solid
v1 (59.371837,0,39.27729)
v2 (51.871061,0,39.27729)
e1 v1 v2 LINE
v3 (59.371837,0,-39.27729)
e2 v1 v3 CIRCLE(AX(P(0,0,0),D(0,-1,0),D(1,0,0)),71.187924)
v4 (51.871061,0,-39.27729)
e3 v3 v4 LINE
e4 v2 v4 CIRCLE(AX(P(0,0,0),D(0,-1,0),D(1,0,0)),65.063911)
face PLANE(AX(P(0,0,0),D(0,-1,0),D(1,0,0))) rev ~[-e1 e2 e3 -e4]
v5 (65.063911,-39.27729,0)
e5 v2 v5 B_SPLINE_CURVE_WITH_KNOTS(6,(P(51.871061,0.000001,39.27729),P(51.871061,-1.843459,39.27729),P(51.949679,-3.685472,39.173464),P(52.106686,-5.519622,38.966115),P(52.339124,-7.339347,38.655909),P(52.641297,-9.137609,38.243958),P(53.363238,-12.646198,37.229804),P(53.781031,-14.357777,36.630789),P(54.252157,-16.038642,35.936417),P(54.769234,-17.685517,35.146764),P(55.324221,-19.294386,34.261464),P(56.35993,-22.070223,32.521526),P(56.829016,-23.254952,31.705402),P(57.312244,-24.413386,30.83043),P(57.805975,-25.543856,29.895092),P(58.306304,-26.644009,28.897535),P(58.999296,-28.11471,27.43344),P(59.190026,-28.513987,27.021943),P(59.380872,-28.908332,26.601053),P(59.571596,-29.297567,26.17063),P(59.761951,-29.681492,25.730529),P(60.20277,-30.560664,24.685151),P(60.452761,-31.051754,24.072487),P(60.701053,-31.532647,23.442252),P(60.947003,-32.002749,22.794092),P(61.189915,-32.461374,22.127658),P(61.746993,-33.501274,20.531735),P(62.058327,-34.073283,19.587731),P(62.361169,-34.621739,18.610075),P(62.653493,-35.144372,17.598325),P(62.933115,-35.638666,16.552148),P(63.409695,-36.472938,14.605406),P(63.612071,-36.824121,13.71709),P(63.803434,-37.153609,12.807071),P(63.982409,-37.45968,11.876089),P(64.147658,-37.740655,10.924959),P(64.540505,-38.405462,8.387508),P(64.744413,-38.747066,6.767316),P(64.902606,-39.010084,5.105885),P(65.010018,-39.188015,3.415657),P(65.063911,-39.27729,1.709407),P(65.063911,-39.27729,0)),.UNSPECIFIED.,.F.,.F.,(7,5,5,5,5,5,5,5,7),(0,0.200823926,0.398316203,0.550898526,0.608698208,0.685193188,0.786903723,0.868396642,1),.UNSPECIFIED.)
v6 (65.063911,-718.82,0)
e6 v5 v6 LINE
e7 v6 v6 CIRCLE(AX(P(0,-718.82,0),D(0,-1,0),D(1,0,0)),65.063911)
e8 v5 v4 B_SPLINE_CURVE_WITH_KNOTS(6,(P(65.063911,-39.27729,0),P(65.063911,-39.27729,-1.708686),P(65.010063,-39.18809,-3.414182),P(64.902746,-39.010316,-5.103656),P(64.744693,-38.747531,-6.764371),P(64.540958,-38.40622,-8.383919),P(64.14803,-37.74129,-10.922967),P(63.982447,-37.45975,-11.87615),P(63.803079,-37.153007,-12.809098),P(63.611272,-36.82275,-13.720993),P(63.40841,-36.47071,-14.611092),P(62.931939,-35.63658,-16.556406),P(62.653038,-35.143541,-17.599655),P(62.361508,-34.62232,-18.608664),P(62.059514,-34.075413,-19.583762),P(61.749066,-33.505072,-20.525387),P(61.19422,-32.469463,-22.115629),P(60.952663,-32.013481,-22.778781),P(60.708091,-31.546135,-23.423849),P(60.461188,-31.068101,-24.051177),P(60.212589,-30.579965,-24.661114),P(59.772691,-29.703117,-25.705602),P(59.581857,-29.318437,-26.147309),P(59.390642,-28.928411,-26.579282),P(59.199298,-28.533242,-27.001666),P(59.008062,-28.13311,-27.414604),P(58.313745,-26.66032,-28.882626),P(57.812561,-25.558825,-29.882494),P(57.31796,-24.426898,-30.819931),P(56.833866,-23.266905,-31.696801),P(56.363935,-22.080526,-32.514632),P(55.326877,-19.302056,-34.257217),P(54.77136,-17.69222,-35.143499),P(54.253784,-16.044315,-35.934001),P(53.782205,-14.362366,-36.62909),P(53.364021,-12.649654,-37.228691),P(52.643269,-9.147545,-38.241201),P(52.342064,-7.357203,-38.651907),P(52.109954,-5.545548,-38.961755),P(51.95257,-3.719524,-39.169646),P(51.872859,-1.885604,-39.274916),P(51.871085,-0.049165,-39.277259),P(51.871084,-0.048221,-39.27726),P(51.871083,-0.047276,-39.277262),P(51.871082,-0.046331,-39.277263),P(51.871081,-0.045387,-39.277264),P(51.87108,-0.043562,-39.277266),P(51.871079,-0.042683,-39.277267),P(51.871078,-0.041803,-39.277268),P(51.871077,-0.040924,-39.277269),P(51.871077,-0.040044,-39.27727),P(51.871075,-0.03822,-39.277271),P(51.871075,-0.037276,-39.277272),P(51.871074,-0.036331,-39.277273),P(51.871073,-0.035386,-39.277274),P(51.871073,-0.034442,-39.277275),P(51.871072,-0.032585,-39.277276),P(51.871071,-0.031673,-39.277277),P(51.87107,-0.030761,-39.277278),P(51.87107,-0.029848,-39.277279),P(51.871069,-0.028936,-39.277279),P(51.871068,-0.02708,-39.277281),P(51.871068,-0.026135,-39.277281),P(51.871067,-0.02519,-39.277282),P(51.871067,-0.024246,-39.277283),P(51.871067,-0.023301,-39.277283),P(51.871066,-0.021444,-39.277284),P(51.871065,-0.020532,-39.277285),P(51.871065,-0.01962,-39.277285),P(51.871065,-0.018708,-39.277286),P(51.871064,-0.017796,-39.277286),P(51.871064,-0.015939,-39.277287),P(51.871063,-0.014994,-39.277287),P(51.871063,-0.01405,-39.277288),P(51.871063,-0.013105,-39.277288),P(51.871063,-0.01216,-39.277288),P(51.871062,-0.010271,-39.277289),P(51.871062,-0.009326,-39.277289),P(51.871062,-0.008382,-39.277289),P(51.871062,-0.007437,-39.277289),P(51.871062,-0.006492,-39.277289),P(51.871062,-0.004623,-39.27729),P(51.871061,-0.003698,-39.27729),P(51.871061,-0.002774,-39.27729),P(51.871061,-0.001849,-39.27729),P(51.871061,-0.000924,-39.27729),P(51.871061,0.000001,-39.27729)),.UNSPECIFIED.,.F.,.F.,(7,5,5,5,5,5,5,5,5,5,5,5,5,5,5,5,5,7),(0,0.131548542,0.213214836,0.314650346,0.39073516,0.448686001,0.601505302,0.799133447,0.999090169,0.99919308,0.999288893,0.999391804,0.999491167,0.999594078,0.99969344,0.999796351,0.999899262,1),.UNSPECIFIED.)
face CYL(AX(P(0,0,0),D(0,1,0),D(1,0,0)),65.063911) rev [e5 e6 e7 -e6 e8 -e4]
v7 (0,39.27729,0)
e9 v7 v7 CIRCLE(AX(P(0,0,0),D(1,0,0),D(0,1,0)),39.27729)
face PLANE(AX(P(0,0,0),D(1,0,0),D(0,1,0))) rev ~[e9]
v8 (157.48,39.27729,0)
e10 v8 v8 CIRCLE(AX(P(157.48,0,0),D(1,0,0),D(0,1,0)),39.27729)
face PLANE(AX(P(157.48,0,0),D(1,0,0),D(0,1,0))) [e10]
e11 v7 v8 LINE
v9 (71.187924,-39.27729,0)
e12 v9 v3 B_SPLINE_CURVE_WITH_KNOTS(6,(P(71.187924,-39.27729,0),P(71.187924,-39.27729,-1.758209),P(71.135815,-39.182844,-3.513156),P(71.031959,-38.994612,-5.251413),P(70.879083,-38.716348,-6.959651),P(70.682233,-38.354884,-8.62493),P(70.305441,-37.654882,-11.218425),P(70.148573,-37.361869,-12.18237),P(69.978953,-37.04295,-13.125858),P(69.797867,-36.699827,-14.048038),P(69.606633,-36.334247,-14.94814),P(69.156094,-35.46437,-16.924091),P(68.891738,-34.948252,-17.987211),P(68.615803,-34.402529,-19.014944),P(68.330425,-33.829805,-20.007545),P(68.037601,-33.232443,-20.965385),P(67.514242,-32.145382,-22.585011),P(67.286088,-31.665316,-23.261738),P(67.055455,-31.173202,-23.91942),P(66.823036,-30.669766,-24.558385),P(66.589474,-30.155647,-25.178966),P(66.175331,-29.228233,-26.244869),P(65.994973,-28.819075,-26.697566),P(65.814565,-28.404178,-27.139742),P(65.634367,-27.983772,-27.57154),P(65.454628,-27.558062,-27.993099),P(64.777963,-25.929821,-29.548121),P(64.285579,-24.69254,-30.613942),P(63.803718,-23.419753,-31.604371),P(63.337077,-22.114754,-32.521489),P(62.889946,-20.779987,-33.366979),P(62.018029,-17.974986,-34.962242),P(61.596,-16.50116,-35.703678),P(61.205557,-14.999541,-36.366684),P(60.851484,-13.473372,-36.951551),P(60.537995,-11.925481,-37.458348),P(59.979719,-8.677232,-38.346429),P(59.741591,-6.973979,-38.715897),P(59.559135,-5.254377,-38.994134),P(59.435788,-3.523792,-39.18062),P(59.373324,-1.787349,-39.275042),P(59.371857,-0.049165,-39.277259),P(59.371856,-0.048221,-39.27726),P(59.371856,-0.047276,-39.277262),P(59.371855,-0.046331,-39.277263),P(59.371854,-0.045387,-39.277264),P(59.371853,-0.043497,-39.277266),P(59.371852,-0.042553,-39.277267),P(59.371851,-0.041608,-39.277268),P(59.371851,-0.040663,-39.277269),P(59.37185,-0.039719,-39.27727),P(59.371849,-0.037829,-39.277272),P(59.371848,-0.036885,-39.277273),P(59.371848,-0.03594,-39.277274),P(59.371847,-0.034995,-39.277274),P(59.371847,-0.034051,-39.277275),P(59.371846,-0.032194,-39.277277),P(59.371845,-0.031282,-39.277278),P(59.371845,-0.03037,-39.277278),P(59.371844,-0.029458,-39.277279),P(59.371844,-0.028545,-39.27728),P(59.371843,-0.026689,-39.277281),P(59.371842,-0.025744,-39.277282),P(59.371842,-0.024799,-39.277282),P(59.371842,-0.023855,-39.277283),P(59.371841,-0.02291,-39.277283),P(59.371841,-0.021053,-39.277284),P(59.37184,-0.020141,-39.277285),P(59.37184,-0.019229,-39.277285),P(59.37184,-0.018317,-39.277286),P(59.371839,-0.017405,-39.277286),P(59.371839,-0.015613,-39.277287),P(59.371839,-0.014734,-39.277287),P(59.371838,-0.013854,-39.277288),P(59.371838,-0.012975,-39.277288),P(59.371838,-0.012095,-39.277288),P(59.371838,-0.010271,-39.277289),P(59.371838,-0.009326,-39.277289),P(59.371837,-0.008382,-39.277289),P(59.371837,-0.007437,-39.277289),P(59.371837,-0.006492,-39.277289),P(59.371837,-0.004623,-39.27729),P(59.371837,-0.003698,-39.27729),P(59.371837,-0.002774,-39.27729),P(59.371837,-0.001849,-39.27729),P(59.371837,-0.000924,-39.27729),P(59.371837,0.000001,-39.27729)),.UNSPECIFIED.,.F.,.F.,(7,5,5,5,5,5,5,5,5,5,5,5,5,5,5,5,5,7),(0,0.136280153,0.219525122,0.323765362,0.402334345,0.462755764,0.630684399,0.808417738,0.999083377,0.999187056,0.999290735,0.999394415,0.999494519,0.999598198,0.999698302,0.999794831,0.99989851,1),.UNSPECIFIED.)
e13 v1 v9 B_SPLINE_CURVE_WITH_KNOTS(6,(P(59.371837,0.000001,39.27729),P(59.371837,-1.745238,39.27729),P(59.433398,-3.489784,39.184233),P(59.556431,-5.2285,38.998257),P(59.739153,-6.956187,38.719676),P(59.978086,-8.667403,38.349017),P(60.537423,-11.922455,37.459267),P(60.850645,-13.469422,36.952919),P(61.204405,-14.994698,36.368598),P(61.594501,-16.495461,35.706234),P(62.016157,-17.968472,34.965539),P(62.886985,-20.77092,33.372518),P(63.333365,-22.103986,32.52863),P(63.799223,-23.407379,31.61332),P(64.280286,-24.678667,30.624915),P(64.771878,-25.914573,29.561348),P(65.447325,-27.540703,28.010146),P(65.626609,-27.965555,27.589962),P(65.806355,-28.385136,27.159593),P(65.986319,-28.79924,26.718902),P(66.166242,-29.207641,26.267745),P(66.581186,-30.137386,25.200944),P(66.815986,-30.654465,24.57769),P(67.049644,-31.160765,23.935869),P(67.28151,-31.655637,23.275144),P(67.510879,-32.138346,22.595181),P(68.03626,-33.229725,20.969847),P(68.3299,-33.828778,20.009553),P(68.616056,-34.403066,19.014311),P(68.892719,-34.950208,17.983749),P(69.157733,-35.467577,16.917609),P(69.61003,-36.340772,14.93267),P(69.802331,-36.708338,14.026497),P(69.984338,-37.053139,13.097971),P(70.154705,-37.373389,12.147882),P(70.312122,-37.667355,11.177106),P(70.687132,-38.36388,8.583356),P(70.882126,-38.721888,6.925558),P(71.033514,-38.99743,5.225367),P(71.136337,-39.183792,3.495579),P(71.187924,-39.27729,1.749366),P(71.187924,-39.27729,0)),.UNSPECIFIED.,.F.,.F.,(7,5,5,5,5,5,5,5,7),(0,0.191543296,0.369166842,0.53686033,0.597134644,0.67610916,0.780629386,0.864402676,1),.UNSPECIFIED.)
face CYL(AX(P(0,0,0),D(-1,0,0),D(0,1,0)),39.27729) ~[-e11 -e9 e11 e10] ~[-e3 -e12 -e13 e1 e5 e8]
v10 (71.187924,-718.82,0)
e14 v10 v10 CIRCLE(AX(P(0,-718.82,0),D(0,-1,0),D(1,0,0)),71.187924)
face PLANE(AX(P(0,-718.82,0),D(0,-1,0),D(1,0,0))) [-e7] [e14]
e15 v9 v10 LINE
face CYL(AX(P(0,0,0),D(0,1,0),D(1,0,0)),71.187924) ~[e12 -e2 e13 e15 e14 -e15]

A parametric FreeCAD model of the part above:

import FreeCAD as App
import Part
import Sketcher

V = App.Vector
Q = App.Units.Quantity

doc = App.newDocument("Part")
params = doc.addObject("Spreadsheet::Sheet", "Params")
for row, (alias, value) in enumerate([
    ("pad1_length", "28.3 in"),
    ("pad2_length", "6.2 in"),
], start=1):
    params.set(f"A{row}", alias)
    params.set(f"B{row}", "=" + value)
    params.setAlias(f"B{row}", alias)

body = doc.addObject("PartDesign::Body", "Body")

# Sketch on XZ plane
sketch1 = doc.addObject("Sketcher::SketchObject", "Sketch")
body.addObject(sketch1)
sketch1.AttachmentSupport = (doc.XZ_Plane, [""])
sketch1.MapMode = "FlatFace"
sketch1.addGeometry(Part.Circle(V(0, 0, 0), V(0, 0, 1), 71), False)
sketch1.addGeometry(Part.Circle(V(0, 0, 0), V(0, 0, 1), 65), False)
sketch1.addConstraint(Sketcher.Constraint("Coincident", 0, 3, -1, 1))
sketch1.addConstraint(Sketcher.Constraint("Coincident", 1, 3, -1, 1))
sketch1.addConstraint(Sketcher.Constraint("Diameter", 1, Q("130.127822 mm")))
sketch1.addConstraint(Sketcher.Constraint("Diameter", 0, Q("142.375848 mm")))
pad1 = doc.addObject("PartDesign::Pad", "Pad")
body.addObject(pad1)
pad1.Profile = sketch1
pad1.setExpression("Length", "Params.pad1_length")

# Sketch on YZ plane
sketch2 = doc.addObject("Sketcher::SketchObject", "Sketch001")
body.addObject(sketch2)
sketch2.AttachmentSupport = (doc.YZ_Plane, [""])
sketch2.MapMode = "FlatFace"
sketch2.addGeometry(Part.Circle(V(0, 0, 0), V(0, 0, 1), 39), False)
sketch2.addConstraint(Sketcher.Constraint("Coincident", 0, 3, -1, 1))
sketch2.addConstraint(Sketcher.Constraint("Diameter", 0, Q("3.0927 in")))
pad2 = doc.addObject("PartDesign::Pad", "Pad001")
body.addObject(pad2)
pad2.Profile = sketch2
pad2.setExpression("Length", "Params.pad2_length")

doc.recompute()
